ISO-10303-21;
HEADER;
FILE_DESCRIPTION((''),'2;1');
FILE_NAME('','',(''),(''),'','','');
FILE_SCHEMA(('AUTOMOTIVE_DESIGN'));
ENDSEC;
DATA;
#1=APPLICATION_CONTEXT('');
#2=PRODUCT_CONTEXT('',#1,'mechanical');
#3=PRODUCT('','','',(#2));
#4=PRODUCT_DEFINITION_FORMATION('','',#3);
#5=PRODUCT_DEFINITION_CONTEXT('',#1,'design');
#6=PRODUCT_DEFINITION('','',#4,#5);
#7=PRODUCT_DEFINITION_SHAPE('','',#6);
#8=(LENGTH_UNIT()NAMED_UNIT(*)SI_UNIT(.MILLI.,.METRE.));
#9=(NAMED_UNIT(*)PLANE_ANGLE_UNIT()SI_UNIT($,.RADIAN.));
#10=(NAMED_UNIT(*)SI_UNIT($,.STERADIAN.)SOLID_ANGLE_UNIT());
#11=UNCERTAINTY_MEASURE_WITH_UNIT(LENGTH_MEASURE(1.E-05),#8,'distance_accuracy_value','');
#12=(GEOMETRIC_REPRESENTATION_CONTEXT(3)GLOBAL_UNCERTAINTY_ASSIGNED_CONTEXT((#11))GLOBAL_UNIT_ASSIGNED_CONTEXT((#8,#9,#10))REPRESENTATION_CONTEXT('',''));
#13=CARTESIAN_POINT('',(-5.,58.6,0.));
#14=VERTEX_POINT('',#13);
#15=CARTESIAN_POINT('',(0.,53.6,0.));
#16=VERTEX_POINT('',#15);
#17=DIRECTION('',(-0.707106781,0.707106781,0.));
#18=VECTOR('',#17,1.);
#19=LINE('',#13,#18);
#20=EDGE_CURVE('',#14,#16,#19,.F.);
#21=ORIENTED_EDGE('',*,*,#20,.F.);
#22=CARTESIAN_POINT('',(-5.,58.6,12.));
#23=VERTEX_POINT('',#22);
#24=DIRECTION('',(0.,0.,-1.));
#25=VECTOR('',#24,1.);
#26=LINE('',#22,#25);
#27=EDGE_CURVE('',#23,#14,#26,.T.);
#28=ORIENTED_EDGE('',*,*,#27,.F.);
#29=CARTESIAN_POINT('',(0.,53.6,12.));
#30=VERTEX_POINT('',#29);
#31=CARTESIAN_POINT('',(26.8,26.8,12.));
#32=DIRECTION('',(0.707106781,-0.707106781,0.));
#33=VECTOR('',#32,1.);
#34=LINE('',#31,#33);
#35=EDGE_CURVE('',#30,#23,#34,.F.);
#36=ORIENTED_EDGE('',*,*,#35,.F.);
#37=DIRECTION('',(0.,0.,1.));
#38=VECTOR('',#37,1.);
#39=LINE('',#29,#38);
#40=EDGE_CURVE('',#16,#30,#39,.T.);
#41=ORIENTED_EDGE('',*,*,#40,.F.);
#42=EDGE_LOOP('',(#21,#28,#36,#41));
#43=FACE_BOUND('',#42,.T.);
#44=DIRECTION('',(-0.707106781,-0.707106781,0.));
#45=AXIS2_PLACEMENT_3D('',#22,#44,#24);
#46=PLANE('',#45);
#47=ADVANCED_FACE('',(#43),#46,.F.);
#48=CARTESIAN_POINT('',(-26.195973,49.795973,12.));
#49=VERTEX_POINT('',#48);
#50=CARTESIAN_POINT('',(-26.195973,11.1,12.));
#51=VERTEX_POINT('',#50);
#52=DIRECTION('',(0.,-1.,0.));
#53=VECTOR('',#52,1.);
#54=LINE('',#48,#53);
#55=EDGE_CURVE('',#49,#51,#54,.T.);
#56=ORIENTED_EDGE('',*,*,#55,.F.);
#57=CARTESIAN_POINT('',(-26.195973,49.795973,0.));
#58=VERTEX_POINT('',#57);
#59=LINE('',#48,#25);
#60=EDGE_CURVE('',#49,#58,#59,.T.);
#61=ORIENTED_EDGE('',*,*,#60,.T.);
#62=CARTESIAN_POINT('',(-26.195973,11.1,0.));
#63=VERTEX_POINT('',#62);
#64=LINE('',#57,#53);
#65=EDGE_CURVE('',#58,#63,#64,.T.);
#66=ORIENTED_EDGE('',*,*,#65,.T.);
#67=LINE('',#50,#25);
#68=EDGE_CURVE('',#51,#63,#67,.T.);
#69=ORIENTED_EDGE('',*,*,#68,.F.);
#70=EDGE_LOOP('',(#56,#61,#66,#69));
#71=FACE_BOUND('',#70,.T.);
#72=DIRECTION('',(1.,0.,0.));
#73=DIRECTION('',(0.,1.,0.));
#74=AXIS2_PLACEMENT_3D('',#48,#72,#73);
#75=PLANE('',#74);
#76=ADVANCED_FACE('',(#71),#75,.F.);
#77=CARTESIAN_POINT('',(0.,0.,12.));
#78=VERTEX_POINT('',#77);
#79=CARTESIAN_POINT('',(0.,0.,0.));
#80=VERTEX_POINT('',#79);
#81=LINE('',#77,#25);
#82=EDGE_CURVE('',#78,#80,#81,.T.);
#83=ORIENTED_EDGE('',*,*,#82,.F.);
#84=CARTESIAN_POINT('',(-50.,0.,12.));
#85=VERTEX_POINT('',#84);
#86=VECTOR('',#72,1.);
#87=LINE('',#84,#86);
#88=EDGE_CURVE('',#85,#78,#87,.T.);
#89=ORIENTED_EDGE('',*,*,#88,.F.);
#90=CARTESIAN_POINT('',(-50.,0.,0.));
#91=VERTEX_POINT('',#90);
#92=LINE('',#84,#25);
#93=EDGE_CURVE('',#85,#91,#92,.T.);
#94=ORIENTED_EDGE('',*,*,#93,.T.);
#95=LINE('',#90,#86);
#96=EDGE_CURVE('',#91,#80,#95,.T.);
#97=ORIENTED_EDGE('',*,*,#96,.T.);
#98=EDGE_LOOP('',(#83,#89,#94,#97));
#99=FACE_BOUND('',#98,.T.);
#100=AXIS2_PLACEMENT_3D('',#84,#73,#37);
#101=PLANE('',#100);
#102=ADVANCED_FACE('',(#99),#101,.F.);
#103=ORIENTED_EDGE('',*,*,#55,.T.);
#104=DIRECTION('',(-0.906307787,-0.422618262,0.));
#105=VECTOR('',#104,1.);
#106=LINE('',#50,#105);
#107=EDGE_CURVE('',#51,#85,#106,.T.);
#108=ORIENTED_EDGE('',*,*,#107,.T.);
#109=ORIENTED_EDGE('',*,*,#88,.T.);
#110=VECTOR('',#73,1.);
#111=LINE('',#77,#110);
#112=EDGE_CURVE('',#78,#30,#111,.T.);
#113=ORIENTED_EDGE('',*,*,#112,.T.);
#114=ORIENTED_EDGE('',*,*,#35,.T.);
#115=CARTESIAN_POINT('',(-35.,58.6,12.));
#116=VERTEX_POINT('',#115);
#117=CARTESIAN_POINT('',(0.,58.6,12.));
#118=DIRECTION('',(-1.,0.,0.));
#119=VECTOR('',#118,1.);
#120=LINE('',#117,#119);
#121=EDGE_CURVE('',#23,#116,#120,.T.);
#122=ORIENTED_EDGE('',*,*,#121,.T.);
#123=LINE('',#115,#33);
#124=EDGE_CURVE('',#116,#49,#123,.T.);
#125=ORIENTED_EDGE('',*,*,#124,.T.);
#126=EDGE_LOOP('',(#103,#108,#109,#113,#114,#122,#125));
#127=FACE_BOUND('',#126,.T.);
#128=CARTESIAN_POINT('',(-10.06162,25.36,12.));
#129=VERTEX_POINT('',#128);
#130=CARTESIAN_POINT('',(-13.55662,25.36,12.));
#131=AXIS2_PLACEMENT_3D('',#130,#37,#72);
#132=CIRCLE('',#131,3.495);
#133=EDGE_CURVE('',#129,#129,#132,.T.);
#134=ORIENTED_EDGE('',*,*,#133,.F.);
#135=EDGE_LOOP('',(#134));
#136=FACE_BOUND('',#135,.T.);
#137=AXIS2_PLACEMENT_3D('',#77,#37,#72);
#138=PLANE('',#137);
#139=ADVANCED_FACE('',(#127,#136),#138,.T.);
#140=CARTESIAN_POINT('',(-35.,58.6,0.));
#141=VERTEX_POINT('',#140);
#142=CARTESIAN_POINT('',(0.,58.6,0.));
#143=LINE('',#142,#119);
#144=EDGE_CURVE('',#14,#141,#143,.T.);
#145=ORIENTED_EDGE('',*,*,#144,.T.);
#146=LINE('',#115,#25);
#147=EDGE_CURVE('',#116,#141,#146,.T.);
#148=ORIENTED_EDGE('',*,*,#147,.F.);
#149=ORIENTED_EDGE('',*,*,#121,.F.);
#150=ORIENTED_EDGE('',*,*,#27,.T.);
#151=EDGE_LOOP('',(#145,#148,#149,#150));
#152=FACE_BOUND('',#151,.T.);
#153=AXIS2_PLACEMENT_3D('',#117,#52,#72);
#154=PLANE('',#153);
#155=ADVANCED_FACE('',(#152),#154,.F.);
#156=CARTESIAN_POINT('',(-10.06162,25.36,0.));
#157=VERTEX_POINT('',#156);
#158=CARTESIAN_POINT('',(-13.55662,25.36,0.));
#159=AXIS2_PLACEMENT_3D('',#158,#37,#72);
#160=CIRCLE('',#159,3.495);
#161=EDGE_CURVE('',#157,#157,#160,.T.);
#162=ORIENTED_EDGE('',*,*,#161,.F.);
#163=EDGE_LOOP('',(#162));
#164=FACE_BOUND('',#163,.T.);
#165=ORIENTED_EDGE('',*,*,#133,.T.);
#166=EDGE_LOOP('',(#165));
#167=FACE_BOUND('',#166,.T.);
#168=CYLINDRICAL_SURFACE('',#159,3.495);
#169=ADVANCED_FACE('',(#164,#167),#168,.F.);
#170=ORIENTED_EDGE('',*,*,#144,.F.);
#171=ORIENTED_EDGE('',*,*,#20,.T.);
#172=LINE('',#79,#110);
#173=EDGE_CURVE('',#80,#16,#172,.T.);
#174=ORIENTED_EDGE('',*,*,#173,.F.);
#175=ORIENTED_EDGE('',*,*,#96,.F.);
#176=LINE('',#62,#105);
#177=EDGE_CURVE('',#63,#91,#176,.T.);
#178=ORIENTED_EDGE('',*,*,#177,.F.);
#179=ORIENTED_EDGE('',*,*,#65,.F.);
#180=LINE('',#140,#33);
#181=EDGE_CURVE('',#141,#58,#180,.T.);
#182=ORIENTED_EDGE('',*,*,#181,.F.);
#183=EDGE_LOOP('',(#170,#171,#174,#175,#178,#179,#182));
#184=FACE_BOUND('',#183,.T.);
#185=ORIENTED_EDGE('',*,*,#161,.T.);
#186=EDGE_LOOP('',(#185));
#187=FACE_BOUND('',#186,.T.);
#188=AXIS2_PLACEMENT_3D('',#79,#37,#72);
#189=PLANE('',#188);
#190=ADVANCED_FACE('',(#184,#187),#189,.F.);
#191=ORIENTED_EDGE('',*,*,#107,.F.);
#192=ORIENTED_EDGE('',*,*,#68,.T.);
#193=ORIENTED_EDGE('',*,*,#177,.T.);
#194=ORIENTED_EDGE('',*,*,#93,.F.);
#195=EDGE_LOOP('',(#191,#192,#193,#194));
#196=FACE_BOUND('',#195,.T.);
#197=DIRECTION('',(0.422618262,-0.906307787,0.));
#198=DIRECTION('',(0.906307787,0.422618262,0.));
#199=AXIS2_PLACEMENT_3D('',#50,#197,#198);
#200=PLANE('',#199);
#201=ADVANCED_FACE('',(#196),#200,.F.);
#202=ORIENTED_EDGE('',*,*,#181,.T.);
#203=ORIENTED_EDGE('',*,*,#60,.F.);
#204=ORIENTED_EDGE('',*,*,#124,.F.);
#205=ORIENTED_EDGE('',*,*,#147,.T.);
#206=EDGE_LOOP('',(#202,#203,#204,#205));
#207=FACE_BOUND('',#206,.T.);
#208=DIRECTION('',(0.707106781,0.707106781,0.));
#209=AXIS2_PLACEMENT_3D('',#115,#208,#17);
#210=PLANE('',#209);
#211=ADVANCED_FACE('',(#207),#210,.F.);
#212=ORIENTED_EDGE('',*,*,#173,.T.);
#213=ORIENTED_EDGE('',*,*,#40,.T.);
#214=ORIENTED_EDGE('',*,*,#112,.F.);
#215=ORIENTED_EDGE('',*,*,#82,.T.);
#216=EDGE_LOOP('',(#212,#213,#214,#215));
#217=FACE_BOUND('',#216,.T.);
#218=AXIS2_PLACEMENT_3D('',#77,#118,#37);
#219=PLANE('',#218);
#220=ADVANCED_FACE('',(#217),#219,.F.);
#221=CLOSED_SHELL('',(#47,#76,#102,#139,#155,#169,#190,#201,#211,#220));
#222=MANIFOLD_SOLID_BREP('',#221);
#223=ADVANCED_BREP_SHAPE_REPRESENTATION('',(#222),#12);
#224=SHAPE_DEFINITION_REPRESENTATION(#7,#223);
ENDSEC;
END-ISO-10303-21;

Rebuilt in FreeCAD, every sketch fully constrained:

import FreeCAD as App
import Part
import Sketcher

V = App.Vector
Q = App.Units.Quantity


def edges_at(feature, points):
    """Names of the edges that pass closest to the given points."""
    edges = feature.Shape.Edges
    near = lambda p: min(range(len(edges)), key=lambda i: edges[i].distToShape(Part.Vertex(*p))[0])
    return sorted({f"Edge{near(p) + 1}" for p in points})


def add_polygon(sketch, points):
    """Adds a closed chain of lines whose ends are joined by coincident constraints."""
    first, n = sketch.GeometryCount, len(points)
    for a, b in zip(points, points[1:] + points[:1]):
        sketch.addGeometry(Part.LineSegment(App.Vector(*a, 0), App.Vector(*b, 0)), False)
    for i in range(n):
        sketch.addConstraint(Sketcher.Constraint("Coincident", first + i, 2, first + (i + 1) % n, 1))

doc = App.newDocument("Part")
body = doc.addObject("PartDesign::Body", "Body")

# Sketch on XY plane
sketch1 = body.newObject("Sketcher::SketchObject", "Sketch")
sketch1.AttachmentSupport = (doc.getObject("XY_Plane"), [""])
sketch1.MapMode = "FlatFace"
add_polygon(sketch1, [(0, 0), (0, 58.6), (-35, 58.6), (-26.195973, 49.795973), (-26.195973, 11.1), (-50, 0)])  # lines 0-5
sketch1.addConstraint(Sketcher.Constraint("Vertical", 0))
sketch1.addConstraint(Sketcher.Constraint("Horizontal", 1))
sketch1.addConstraint(Sketcher.Constraint("Vertical", 3))
sketch1.addConstraint(Sketcher.Constraint("Horizontal", 5))
sketch1.addConstraint(Sketcher.Constraint("Coincident", 5, 2, -1, 1))
sketch1.addConstraint(Sketcher.Constraint("DistanceX", 1, 2, 1, 1, 35.0))
sketch1.addConstraint(Sketcher.Constraint("DistanceX", 5, 1, 5, 2, 50.0))
sketch1.addConstraint(Sketcher.Constraint("Angle", 2, Q("-45 deg")))
sketch1.addConstraint(Sketcher.Constraint("Angle", 4, Q("-155 deg")))
sketch1.addConstraint(Sketcher.Constraint("DistanceY", 0, 1, 0, 2, 58.6))
sketch1.addConstraint(Sketcher.Constraint("DistanceY", -1, 1, 3, 2, 11.1))
pad1 = body.newObject("PartDesign::Pad", "Pad")
pad1.Profile = sketch1
pad1.Length = 12

# Sketch on XY plane
sketch2 = body.newObject("Sketcher::SketchObject", "Sketch001")
sketch2.AttachmentSupport = (doc.getObject("XY_Plane"), [""])
sketch2.MapMode = "FlatFace"
sketch2.AttachmentOffset = App.Placement(V(0, 0, 12), App.Rotation())
sketch2.addGeometry(Part.Circle(V(-13.55662, 25.36, 0), V(0, 0, 1), 3.495), False)
sketch2.addConstraint(Sketcher.Constraint("Diameter", 0, 6.99))
sketch2.addConstraint(Sketcher.Constraint("DistanceY", -1, 1, 0, 3, 25.36))
sketch2.addConstraint(Sketcher.Constraint("DistanceX", 0, 3, -1, 1, 13.55662))
pocket1 = body.newObject("PartDesign::Pocket", "Pocket")
pocket1.Profile = sketch2
pocket1.Type = "ThroughAll"
doc.recompute()

chamfer = body.newObject("PartDesign::Chamfer", "Chamfer")
chamfer.Base = (pocket1, edges_at(pocket1, [(0, 58.6, 6)]))
chamfer.Size = 5

doc.recompute()
